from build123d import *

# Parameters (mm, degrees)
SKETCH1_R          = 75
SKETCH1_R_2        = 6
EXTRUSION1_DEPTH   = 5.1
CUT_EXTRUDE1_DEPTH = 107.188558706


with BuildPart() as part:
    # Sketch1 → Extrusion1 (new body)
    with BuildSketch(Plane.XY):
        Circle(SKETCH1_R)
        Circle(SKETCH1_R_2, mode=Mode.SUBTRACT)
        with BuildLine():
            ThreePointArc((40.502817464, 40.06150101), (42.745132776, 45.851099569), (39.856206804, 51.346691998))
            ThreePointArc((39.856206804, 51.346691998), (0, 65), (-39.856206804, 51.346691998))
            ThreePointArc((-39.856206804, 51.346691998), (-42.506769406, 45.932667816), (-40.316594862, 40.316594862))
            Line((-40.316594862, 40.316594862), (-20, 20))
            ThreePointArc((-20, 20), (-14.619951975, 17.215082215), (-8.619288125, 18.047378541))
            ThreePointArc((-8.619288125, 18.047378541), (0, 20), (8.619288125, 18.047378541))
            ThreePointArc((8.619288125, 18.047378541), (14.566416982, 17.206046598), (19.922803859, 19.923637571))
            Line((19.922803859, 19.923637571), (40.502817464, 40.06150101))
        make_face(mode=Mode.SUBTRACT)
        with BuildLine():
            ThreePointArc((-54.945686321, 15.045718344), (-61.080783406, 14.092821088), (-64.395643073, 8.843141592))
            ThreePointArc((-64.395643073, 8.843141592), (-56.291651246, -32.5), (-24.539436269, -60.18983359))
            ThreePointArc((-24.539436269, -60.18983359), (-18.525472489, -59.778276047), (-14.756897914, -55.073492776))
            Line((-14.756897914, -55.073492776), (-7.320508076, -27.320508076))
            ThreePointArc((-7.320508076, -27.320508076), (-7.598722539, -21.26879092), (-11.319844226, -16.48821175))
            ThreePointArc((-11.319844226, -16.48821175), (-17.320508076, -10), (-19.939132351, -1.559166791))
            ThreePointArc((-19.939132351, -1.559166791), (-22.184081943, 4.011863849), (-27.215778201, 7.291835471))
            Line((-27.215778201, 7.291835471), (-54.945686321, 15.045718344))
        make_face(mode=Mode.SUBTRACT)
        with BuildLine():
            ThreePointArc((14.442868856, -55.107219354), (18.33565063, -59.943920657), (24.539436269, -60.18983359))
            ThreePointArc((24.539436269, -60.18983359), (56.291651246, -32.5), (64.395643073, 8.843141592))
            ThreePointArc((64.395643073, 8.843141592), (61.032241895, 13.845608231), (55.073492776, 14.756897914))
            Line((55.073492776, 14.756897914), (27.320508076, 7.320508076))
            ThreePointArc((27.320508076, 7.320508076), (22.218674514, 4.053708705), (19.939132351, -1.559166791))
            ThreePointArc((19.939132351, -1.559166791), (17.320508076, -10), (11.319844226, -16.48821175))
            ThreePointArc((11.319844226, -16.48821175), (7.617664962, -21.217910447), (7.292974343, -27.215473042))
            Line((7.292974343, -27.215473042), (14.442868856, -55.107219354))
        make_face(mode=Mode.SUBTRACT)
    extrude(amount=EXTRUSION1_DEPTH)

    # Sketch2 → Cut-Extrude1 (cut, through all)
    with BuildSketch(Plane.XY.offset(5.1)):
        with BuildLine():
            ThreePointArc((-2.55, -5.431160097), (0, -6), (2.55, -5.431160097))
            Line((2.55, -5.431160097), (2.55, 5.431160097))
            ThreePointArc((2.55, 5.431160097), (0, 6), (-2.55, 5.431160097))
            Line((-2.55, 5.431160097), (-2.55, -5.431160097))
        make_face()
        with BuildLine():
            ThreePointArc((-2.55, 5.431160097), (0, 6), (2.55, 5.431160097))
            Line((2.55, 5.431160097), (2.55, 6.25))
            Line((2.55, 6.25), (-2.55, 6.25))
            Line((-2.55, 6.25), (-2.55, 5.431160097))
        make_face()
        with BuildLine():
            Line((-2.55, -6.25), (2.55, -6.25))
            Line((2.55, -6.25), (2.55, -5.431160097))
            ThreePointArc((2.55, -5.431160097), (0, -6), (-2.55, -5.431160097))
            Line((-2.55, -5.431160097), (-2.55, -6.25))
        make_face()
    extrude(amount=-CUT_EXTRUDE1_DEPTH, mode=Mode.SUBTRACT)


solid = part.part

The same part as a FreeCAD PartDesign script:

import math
import FreeCAD as App
import Part
import Sketcher

V = App.Vector
Q = App.Units.Quantity


def add_polygon(sketch, points):
    """Adds a closed chain of lines whose ends are joined by coincident constraints."""
    first, n = sketch.GeometryCount, len(points)
    for a, b in zip(points, points[1:] + points[:1]):
        sketch.addGeometry(Part.LineSegment(App.Vector(*a, 0), App.Vector(*b, 0)), False)
    for i in range(n):
        sketch.addConstraint(Sketcher.Constraint("Coincident", first + i, 2, first + (i + 1) % n, 1))

doc = App.newDocument("Part")
params = doc.addObject("Spreadsheet::Sheet", "Params")
for row, (alias, value) in enumerate([
    ("sketch1_diameter", "150 mm"),
    ("sketch1_diameter2", "12 mm"),
    ("sketch1_radius", "10 mm"),
    ("sketch1_radius2", "20 mm"),
    ("sketch1_radius3", "65 mm"),
    ("pad1_length", "5.1 mm"),
    ("sketch2_width", "5.1 mm"),
    ("sketch2_height", "12.5 mm"),
], start=1):
    params.set(f"A{row}", alias)
    params.set(f"B{row}", "=" + value)
    params.setAlias(f"B{row}", alias)

body = doc.addObject("PartDesign::Body", "Body")

# Sketch on XY plane
sketch1 = doc.addObject("Sketcher::SketchObject", "Sketch")
body.addObject(sketch1)
sketch1.AttachmentSupport = (doc.XY_Plane, [""])
sketch1.MapMode = "FlatFace"
sketch1.addGeometry([
    Part.Circle(V(0, 0, 0), V(0, 0, 1), 75),  # 0
    Part.ArcOfCircle(Part.Circle(V(-57, 8, 0), V(0, 0, 1), 8), math.radians(74), math.radians(172)),  # 1
    Part.LineSegment(V(-55, 15, 0), V(-27, 7, 0)),  # 2
    Part.ArcOfCircle(Part.Circle(V(-30, -2, 0), V(0, 0, 1), 10), math.radians(4), math.radians(74)),  # 3
    Part.ArcOfCircle(Part.Circle(V(0, 0, 0), V(0, 0, 1), 20), math.radians(-176), math.radians(-124)),  # 4
    Part.ArcOfCircle(Part.Circle(V(-17, -25, 0), V(0, 0, 1), 10), math.radians(-15), math.radians(56)),  # 5
    Part.LineSegment(V(-7, -27, 0), V(-15, -55, 0)),  # 6
    Part.ArcOfCircle(Part.Circle(V(-22, -53, 0), V(0, 0, 1), 7), math.radians(-110), math.radians(-15)),  # 7
    Part.ArcOfCircle(Part.Circle(V(0, 0, 0), V(0, 0, 1), 65), math.radians(172), math.radians(248)),  # 8
    Part.Circle(V(0, 0, 0), V(0, 0, 1), 6),  # 9
    Part.ArcOfCircle(Part.Circle(V(22, -53, 0), V(0, 0, 1), 8), math.radians(-166), math.radians(-68)),  # 10
    Part.LineSegment(V(14, -55, 0), V(7, -27, 0)),  # 11
    Part.ArcOfCircle(Part.Circle(V(17, -25, 0), V(0, 0, 1), 10), math.radians(124), math.radians(194)),  # 12
    Part.ArcOfCircle(Part.Circle(V(0, 0, 0), V(0, 0, 1), 20), math.radians(-56), math.radians(-4)),  # 13
    Part.ArcOfCircle(Part.Circle(V(30, -2, 0), V(0, 0, 1), 10), math.radians(105), math.radians(176)),  # 14
    Part.LineSegment(V(27, 7, 0), V(55, 15, 0)),  # 15
    Part.ArcOfCircle(Part.Circle(V(57, 8, 0), V(0, 0, 1), 8), math.radians(10), math.radians(105)),  # 16
    Part.ArcOfCircle(Part.Circle(V(0, 0, 0), V(0, 0, 1), 65), math.radians(-68), math.radians(8)),  # 17
    Part.ArcOfCircle(Part.Circle(V(35, 45, 0), V(0, 0, 1), 8), math.radians(-46), math.radians(52)),  # 18
    Part.LineSegment(V(41, 40, 0), V(20, 20, 0)),  # 19
    Part.ArcOfCircle(Part.Circle(V(13, 27, 0), V(0, 0, 1), 10), math.radians(-116), math.radians(-46)),  # 20
    Part.ArcOfCircle(Part.Circle(V(0, 0, 0), V(0, 0, 1), 20), math.radians(64), math.radians(116)),  # 21
    Part.ArcOfCircle(Part.Circle(V(-13, 27, 0), V(0, 0, 1), 10), math.radians(-135), math.radians(-64)),  # 22
    Part.LineSegment(V(-20, 20, 0), V(-40, 40, 0)),  # 23
    Part.ArcOfCircle(Part.Circle(V(-35, 46, 0), V(0, 0, 1), 8), math.radians(130), math.radians(225)),  # 24
    Part.ArcOfCircle(Part.Circle(V(0, 0, 0), V(0, 0, 1), 65), math.radians(52), math.radians(128)),  # 25
], False)
sketch1.addConstraint([
    Sketcher.Constraint("Tangent", 1, 1, 2, 1),
    Sketcher.Constraint("Tangent", 2, 2, 3, 2),
    Sketcher.Constraint("Tangent", 3, 1, 4, 1),
    Sketcher.Constraint("Tangent", 4, 2, 5, 2),
    Sketcher.Constraint("Tangent", 5, 1, 6, 1),
    Sketcher.Constraint("Tangent", 6, 2, 7, 2),
    Sketcher.Constraint("Coincident", 7, 1, 8, 2),
    Sketcher.Constraint("Tangent", 8, 1, 1, 2),
    Sketcher.Constraint("Tangent", 10, 1, 11, 1),
    Sketcher.Constraint("Tangent", 11, 2, 12, 2),
    Sketcher.Constraint("Tangent", 12, 1, 13, 1),
    Sketcher.Constraint("Tangent", 13, 2, 14, 2),
    Sketcher.Constraint("Tangent", 14, 1, 15, 1),
    Sketcher.Constraint("Tangent", 15, 2, 16, 2),
    Sketcher.Constraint("Coincident", 16, 1, 17, 2),
    Sketcher.Constraint("Tangent", 17, 1, 10, 2),
    Sketcher.Constraint("Tangent", 18, 1, 19, 1),
    Sketcher.Constraint("Tangent", 19, 2, 20, 2),
    Sketcher.Constraint("Tangent", 20, 1, 21, 1),
    Sketcher.Constraint("Tangent", 21, 2, 22, 2),
    Sketcher.Constraint("Tangent", 22, 1, 23, 1),
    Sketcher.Constraint("Tangent", 23, 2, 24, 2),
    Sketcher.Constraint("Coincident", 24, 1, 25, 2),
    Sketcher.Constraint("Tangent", 25, 1, 18, 2),
    Sketcher.Constraint("Coincident", 0, 3, -1, 1),
    Sketcher.Constraint("Coincident", 4, 3, -1, 1),
    Sketcher.Constraint("Coincident", 8, 3, -1, 1),
    Sketcher.Constraint("Coincident", 9, 3, -1, 1),
    Sketcher.Constraint("Coincident", 13, 3, -1, 1),
    Sketcher.Constraint("Coincident", 17, 3, -1, 1),
    Sketcher.Constraint("Coincident", 21, 3, -1, 1),
    Sketcher.Constraint("Coincident", 25, 3, -1, 1),
    Sketcher.Constraint("Equal", 3, 5),
    Sketcher.Constraint("Equal", 1, 7),
    Sketcher.Constraint("Equal", 7, 10),
    Sketcher.Constraint("Equal", 5, 12),
    Sketcher.Constraint("Equal", 4, 13),
    Sketcher.Constraint("Equal", 12, 14),
    Sketcher.Constraint("Equal", 10, 16),
    Sketcher.Constraint("Equal", 8, 17),
    Sketcher.Constraint("Equal", 16, 18),
    Sketcher.Constraint("Equal", 14, 20),
    Sketcher.Constraint("Equal", 13, 21),
    Sketcher.Constraint("Equal", 20, 22),
    Sketcher.Constraint("Equal", 18, 24),
    Sketcher.Constraint("Equal", 17, 25),
    Sketcher.Constraint("Horizontal", 5, 3, 12, 3),
    Sketcher.Constraint("Horizontal", 3, 3, 14, 3),
    Sketcher.Constraint("Horizontal", 20, 3, 22, 3),
    Sketcher.Constraint("Horizontal", 8, 1, 16, 1),
    Sketcher.Constraint("Horizontal", 7, 1, 17, 1),
    Sketcher.Constraint("Horizontal", 24, 1, 25, 1),
    Sketcher.Constraint("Equal", 2, 11),
    Sketcher.Constraint("Equal", 6, 15),
    Sketcher.Constraint("Equal", 11, 19),
    Sketcher.Constraint("Equal", 15, 23),
    Sketcher.Constraint("Diameter", 0, 150.0),
    Sketcher.Constraint("Diameter", 9, 12.0),
    Sketcher.Constraint("Radius", 3, 10.0),
    Sketcher.Constraint("Radius", 4, 20.0),
    Sketcher.Constraint("Radius", 8, 65.0),
    Sketcher.Constraint("Radius", 1, 7.5),
    Sketcher.Constraint("Angle", 6, Q("-105 deg")),
    Sketcher.Constraint("Angle", 15, Q("15 deg")),
    Sketcher.Constraint("Angle", 23, Q("135 deg")),
    Sketcher.Constraint("DistanceX", 22, 1, -1, 1, 20.0),
    Sketcher.Constraint("DistanceY", -1, 1, 18, 1, 40.061501),
])
sketch1.setExpression("Constraints[56]", "Params.sketch1_diameter")
sketch1.setExpression("Constraints[57]", "Params.sketch1_diameter2")
sketch1.setExpression("Constraints[58]", "Params.sketch1_radius")
sketch1.setExpression("Constraints[59]", "Params.sketch1_radius2")
sketch1.setExpression("Constraints[60]", "Params.sketch1_radius3")
pad1 = doc.addObject("PartDesign::Pad", "Pad")
body.addObject(pad1)
pad1.Profile = sketch1
pad1.setExpression("Length", "Params.pad1_length")

# Sketch on XY plane
sketch2 = doc.addObject("Sketcher::SketchObject", "Sketch001")
body.addObject(sketch2)
sketch2.AttachmentSupport = (doc.XY_Plane, [""])
sketch2.MapMode = "FlatFace"
sketch2.AttachmentOffset = App.Placement(V(0, 0, 5.1), App.Rotation())
add_polygon(sketch2, [(3, 6), (-3, 6), (-3, -6), (3, -6)])  # lines 0-3
sketch2.addConstraint([
    Sketcher.Constraint("Horizontal", 0),
    Sketcher.Constraint("Vertical", 1),
    Sketcher.Constraint("Horizontal", 2),
    Sketcher.Constraint("Vertical", 3),
    Sketcher.Constraint("Symmetric", 0, 2, 2, 2, -1, 1),
    Sketcher.Constraint("DistanceX", 0, 2, 0, 1, 5.1),
    Sketcher.Constraint("DistanceY", 1, 2, 1, 1, 12.5),
])
sketch2.setExpression("Constraints[9]", "Params.sketch2_width")
sketch2.setExpression("Constraints[10]", "Params.sketch2_height")
pocket1 = doc.addObject("PartDesign::Pocket", "Pocket")
body.addObject(pocket1)
pocket1.Profile = sketch2
pocket1.Type = "ThroughAll"

doc.recompute()
